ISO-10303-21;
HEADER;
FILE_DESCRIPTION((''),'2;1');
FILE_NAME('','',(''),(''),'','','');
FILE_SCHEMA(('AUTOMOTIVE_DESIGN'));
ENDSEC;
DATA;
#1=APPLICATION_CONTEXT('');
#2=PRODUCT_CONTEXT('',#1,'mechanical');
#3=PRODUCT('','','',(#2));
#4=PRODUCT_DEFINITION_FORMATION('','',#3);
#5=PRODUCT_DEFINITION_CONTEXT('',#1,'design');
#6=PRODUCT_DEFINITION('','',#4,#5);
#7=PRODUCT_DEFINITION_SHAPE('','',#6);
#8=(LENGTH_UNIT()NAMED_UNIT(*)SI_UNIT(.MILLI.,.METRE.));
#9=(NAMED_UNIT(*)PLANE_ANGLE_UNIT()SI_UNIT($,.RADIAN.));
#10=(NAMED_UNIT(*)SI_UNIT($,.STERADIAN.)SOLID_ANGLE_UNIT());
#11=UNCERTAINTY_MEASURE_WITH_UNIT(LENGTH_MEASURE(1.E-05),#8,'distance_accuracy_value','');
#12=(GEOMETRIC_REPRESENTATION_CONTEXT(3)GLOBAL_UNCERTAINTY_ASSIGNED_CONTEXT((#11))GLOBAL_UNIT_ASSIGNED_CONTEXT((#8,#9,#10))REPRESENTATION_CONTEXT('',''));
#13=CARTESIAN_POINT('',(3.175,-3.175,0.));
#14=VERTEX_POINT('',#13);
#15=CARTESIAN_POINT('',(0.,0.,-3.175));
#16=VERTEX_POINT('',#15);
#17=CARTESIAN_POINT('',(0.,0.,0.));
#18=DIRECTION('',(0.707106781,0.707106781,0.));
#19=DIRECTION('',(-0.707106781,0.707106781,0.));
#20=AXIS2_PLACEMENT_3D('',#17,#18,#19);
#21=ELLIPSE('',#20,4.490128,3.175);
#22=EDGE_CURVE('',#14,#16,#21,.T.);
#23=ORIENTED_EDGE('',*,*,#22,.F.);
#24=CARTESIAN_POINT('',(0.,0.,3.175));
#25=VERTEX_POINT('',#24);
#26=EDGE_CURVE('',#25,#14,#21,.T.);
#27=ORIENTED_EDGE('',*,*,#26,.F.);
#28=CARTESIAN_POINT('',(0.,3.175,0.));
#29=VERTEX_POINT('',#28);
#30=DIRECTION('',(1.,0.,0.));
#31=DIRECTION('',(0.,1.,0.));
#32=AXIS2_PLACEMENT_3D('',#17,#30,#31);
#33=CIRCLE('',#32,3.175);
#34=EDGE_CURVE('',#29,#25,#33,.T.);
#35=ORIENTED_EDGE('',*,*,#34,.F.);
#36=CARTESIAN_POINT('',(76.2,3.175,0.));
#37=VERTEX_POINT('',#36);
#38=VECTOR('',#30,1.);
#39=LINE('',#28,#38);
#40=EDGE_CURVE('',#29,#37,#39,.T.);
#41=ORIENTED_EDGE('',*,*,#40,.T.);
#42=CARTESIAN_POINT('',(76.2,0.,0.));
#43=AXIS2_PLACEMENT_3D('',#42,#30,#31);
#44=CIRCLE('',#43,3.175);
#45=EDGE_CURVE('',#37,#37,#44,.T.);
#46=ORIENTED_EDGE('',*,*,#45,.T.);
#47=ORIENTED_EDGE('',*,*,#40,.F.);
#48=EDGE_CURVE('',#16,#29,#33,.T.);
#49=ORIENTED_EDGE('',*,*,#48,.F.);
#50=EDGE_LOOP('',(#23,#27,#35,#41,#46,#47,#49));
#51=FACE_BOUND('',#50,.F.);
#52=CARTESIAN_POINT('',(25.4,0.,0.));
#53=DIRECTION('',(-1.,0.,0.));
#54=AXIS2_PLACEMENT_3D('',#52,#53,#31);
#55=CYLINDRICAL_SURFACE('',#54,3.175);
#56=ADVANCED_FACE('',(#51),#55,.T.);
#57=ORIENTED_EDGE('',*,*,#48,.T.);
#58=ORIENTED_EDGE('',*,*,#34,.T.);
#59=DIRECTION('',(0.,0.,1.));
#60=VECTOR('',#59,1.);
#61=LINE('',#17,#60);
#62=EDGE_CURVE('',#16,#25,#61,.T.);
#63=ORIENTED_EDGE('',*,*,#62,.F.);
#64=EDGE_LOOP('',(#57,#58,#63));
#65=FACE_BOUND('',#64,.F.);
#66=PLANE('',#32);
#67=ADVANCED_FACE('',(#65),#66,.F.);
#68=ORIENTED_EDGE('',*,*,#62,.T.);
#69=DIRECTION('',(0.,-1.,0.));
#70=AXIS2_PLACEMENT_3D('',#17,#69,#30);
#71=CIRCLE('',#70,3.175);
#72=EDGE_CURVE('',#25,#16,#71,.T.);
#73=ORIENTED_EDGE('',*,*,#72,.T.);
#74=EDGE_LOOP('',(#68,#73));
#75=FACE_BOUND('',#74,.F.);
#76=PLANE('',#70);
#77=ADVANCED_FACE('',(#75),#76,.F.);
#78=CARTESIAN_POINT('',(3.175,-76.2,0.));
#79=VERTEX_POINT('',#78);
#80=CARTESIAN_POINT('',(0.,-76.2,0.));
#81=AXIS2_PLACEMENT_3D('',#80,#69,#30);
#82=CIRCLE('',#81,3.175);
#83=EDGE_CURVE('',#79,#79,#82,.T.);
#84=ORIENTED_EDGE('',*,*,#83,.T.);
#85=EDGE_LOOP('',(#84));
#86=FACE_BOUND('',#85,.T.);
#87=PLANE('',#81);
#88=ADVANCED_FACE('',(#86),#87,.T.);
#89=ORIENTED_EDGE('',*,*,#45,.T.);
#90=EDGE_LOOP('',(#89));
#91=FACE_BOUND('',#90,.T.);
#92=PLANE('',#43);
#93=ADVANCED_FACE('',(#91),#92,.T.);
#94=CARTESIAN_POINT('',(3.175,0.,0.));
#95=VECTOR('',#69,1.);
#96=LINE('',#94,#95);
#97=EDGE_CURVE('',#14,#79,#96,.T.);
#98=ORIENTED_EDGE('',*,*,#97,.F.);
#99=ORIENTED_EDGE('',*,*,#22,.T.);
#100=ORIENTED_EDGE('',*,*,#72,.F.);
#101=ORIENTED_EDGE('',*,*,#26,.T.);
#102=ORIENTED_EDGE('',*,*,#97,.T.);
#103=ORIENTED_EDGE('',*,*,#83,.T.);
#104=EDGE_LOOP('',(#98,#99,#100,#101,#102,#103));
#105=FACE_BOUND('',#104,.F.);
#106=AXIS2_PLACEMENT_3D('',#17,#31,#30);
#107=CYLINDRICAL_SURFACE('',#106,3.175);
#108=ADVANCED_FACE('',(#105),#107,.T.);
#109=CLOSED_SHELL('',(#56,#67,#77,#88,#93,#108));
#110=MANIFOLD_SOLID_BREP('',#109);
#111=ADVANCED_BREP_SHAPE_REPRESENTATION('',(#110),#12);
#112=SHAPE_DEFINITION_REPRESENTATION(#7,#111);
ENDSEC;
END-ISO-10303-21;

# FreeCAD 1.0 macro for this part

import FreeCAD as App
import Part
import Sketcher

V = App.Vector
Q = App.Units.Quantity

doc = App.newDocument("Part")
body = doc.addObject("PartDesign::Body", "Body")

sketch1 = body.newObject("Sketcher::SketchObject", "Sketch")
sketch1.AttachmentSupport = (doc.getObject("XZ_Plane"), [""])
sketch1.MapMode = "FlatFace"
sketch1.addGeometry(Part.Circle(V(0, 0, 0), V(0, 0, 1), 3.175), False)
sketch1.addConstraint([
    Sketcher.Constraint("Coincident", 0, 3, -1, 1),
    Sketcher.Constraint("Diameter", 0, Q("0.25 in")),
])
pad1 = body.newObject("PartDesign::Pad", "Pad")
pad1.Profile = sketch1
pad1.Length = Q("3 in")

sketch2 = body.newObject("Sketcher::SketchObject", "Sketch001")
sketch2.AttachmentSupport = (doc.getObject("YZ_Plane"), [""])
sketch2.MapMode = "FlatFace"
sketch2.addGeometry(Part.Circle(V(0, 0, 0), V(0, 0, 1), 3.175), False)
sketch2.addConstraint([
    Sketcher.Constraint("Coincident", 0, 3, -1, 1),
    Sketcher.Constraint("Diameter", 0, Q("0.25 in")),
])
pad2 = body.newObject("PartDesign::Pad", "Pad001")
pad2.Profile = sketch2
pad2.Length = Q("1 in")

sketch3 = body.newObject("Sketcher::SketchObject", "Sketch002")
sketch3.AttachmentSupport = (doc.getObject("YZ_Plane"), [""])
sketch3.MapMode = "FlatFace"
sketch3.AttachmentOffset = App.Placement(V(0, 0, 1 * 25.4), App.Rotation())
sketch3.addGeometry(Part.Circle(V(0, 0, 0), V(0, 0, 1), 3.175), False)
sketch3.addConstraint([
    Sketcher.Constraint("Coincident", 0, 3, -1, 1),
    Sketcher.Constraint("Diameter", 0, Q("0.25 in")),
])
pad3 = body.newObject("PartDesign::Pad", "Pad002")
pad3.Profile = sketch3
pad3.Length = Q("2 in")

doc.recompute()
